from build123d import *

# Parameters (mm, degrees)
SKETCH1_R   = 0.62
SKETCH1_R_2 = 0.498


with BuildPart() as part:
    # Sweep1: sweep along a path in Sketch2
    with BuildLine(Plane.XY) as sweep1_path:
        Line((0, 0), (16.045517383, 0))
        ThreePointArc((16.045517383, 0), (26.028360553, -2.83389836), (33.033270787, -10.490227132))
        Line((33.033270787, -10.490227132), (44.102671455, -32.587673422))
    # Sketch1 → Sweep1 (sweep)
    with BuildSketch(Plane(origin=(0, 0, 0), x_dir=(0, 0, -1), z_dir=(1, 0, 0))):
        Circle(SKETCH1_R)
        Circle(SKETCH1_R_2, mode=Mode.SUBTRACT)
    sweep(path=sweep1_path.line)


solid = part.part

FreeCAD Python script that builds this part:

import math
import FreeCAD as App
import Part
import Sketcher

V = App.Vector

doc = App.newDocument("Part")
body = doc.addObject("PartDesign::Body", "Body")

sketch1 = body.newObject("Sketcher::SketchObject", "Sketch")
sketch1.AttachmentSupport = (doc.getObject("YZ_Plane"), [""])
sketch1.MapMode = "FlatFace"
sketch1.addGeometry([
    Part.Circle(V(0, 0, 0), V(0, 0, 1), 0.62),
    Part.Circle(V(0, 0, 0), V(0, 0, 1), 0.5),
], False)
sketch1.addConstraint([
    Sketcher.Constraint("Coincident", 0, 3, -1, 1),
    Sketcher.Constraint("Coincident", 1, 3, -1, 1),
    Sketcher.Constraint("Diameter", 0, 1.24),
    Sketcher.Constraint("Diameter", 1, 0.996),
])

sketch2 = body.newObject("Sketcher::SketchObject", "Sketch001")
sketch2.AttachmentSupport = (doc.getObject("XY_Plane"), [""])
sketch2.MapMode = "FlatFace"
sketch2.addGeometry([
    Part.LineSegment(V(0, 0, 0), V(16, 0, 0)),
    Part.ArcOfCircle(Part.Circle(V(16, -19, 0), V(0, 0, 1), 19), math.radians(27), math.radians(90)),
    Part.LineSegment(V(33, -10, 0), V(44, -33, 0)),
], False)
sketch2.addConstraint([
    Sketcher.Constraint("Tangent", 0, 2, 1, 2),
    Sketcher.Constraint("Tangent", 1, 1, 2, 1),
    Sketcher.Constraint("Horizontal", 0),
    Sketcher.Constraint("Coincident", 0, 1, -1, 1),
    Sketcher.Constraint("Radius", 1, 19.0),
    Sketcher.Constraint("DistanceX", 1, 1, 2, 2, 11.069401),
    Sketcher.Constraint("Distance", 2, 24.71495),
    Sketcher.Constraint("DistanceX", 0, 1, 0, 2, 16.045517),
])
doc.recompute()

additivepipe = body.newObject("PartDesign::AdditivePipe", "AdditivePipe")
additivepipe.Profile = sketch1
additivepipe.Spine = (sketch2, ["Edge1", "Edge2", "Edge3"])

doc.recompute()
